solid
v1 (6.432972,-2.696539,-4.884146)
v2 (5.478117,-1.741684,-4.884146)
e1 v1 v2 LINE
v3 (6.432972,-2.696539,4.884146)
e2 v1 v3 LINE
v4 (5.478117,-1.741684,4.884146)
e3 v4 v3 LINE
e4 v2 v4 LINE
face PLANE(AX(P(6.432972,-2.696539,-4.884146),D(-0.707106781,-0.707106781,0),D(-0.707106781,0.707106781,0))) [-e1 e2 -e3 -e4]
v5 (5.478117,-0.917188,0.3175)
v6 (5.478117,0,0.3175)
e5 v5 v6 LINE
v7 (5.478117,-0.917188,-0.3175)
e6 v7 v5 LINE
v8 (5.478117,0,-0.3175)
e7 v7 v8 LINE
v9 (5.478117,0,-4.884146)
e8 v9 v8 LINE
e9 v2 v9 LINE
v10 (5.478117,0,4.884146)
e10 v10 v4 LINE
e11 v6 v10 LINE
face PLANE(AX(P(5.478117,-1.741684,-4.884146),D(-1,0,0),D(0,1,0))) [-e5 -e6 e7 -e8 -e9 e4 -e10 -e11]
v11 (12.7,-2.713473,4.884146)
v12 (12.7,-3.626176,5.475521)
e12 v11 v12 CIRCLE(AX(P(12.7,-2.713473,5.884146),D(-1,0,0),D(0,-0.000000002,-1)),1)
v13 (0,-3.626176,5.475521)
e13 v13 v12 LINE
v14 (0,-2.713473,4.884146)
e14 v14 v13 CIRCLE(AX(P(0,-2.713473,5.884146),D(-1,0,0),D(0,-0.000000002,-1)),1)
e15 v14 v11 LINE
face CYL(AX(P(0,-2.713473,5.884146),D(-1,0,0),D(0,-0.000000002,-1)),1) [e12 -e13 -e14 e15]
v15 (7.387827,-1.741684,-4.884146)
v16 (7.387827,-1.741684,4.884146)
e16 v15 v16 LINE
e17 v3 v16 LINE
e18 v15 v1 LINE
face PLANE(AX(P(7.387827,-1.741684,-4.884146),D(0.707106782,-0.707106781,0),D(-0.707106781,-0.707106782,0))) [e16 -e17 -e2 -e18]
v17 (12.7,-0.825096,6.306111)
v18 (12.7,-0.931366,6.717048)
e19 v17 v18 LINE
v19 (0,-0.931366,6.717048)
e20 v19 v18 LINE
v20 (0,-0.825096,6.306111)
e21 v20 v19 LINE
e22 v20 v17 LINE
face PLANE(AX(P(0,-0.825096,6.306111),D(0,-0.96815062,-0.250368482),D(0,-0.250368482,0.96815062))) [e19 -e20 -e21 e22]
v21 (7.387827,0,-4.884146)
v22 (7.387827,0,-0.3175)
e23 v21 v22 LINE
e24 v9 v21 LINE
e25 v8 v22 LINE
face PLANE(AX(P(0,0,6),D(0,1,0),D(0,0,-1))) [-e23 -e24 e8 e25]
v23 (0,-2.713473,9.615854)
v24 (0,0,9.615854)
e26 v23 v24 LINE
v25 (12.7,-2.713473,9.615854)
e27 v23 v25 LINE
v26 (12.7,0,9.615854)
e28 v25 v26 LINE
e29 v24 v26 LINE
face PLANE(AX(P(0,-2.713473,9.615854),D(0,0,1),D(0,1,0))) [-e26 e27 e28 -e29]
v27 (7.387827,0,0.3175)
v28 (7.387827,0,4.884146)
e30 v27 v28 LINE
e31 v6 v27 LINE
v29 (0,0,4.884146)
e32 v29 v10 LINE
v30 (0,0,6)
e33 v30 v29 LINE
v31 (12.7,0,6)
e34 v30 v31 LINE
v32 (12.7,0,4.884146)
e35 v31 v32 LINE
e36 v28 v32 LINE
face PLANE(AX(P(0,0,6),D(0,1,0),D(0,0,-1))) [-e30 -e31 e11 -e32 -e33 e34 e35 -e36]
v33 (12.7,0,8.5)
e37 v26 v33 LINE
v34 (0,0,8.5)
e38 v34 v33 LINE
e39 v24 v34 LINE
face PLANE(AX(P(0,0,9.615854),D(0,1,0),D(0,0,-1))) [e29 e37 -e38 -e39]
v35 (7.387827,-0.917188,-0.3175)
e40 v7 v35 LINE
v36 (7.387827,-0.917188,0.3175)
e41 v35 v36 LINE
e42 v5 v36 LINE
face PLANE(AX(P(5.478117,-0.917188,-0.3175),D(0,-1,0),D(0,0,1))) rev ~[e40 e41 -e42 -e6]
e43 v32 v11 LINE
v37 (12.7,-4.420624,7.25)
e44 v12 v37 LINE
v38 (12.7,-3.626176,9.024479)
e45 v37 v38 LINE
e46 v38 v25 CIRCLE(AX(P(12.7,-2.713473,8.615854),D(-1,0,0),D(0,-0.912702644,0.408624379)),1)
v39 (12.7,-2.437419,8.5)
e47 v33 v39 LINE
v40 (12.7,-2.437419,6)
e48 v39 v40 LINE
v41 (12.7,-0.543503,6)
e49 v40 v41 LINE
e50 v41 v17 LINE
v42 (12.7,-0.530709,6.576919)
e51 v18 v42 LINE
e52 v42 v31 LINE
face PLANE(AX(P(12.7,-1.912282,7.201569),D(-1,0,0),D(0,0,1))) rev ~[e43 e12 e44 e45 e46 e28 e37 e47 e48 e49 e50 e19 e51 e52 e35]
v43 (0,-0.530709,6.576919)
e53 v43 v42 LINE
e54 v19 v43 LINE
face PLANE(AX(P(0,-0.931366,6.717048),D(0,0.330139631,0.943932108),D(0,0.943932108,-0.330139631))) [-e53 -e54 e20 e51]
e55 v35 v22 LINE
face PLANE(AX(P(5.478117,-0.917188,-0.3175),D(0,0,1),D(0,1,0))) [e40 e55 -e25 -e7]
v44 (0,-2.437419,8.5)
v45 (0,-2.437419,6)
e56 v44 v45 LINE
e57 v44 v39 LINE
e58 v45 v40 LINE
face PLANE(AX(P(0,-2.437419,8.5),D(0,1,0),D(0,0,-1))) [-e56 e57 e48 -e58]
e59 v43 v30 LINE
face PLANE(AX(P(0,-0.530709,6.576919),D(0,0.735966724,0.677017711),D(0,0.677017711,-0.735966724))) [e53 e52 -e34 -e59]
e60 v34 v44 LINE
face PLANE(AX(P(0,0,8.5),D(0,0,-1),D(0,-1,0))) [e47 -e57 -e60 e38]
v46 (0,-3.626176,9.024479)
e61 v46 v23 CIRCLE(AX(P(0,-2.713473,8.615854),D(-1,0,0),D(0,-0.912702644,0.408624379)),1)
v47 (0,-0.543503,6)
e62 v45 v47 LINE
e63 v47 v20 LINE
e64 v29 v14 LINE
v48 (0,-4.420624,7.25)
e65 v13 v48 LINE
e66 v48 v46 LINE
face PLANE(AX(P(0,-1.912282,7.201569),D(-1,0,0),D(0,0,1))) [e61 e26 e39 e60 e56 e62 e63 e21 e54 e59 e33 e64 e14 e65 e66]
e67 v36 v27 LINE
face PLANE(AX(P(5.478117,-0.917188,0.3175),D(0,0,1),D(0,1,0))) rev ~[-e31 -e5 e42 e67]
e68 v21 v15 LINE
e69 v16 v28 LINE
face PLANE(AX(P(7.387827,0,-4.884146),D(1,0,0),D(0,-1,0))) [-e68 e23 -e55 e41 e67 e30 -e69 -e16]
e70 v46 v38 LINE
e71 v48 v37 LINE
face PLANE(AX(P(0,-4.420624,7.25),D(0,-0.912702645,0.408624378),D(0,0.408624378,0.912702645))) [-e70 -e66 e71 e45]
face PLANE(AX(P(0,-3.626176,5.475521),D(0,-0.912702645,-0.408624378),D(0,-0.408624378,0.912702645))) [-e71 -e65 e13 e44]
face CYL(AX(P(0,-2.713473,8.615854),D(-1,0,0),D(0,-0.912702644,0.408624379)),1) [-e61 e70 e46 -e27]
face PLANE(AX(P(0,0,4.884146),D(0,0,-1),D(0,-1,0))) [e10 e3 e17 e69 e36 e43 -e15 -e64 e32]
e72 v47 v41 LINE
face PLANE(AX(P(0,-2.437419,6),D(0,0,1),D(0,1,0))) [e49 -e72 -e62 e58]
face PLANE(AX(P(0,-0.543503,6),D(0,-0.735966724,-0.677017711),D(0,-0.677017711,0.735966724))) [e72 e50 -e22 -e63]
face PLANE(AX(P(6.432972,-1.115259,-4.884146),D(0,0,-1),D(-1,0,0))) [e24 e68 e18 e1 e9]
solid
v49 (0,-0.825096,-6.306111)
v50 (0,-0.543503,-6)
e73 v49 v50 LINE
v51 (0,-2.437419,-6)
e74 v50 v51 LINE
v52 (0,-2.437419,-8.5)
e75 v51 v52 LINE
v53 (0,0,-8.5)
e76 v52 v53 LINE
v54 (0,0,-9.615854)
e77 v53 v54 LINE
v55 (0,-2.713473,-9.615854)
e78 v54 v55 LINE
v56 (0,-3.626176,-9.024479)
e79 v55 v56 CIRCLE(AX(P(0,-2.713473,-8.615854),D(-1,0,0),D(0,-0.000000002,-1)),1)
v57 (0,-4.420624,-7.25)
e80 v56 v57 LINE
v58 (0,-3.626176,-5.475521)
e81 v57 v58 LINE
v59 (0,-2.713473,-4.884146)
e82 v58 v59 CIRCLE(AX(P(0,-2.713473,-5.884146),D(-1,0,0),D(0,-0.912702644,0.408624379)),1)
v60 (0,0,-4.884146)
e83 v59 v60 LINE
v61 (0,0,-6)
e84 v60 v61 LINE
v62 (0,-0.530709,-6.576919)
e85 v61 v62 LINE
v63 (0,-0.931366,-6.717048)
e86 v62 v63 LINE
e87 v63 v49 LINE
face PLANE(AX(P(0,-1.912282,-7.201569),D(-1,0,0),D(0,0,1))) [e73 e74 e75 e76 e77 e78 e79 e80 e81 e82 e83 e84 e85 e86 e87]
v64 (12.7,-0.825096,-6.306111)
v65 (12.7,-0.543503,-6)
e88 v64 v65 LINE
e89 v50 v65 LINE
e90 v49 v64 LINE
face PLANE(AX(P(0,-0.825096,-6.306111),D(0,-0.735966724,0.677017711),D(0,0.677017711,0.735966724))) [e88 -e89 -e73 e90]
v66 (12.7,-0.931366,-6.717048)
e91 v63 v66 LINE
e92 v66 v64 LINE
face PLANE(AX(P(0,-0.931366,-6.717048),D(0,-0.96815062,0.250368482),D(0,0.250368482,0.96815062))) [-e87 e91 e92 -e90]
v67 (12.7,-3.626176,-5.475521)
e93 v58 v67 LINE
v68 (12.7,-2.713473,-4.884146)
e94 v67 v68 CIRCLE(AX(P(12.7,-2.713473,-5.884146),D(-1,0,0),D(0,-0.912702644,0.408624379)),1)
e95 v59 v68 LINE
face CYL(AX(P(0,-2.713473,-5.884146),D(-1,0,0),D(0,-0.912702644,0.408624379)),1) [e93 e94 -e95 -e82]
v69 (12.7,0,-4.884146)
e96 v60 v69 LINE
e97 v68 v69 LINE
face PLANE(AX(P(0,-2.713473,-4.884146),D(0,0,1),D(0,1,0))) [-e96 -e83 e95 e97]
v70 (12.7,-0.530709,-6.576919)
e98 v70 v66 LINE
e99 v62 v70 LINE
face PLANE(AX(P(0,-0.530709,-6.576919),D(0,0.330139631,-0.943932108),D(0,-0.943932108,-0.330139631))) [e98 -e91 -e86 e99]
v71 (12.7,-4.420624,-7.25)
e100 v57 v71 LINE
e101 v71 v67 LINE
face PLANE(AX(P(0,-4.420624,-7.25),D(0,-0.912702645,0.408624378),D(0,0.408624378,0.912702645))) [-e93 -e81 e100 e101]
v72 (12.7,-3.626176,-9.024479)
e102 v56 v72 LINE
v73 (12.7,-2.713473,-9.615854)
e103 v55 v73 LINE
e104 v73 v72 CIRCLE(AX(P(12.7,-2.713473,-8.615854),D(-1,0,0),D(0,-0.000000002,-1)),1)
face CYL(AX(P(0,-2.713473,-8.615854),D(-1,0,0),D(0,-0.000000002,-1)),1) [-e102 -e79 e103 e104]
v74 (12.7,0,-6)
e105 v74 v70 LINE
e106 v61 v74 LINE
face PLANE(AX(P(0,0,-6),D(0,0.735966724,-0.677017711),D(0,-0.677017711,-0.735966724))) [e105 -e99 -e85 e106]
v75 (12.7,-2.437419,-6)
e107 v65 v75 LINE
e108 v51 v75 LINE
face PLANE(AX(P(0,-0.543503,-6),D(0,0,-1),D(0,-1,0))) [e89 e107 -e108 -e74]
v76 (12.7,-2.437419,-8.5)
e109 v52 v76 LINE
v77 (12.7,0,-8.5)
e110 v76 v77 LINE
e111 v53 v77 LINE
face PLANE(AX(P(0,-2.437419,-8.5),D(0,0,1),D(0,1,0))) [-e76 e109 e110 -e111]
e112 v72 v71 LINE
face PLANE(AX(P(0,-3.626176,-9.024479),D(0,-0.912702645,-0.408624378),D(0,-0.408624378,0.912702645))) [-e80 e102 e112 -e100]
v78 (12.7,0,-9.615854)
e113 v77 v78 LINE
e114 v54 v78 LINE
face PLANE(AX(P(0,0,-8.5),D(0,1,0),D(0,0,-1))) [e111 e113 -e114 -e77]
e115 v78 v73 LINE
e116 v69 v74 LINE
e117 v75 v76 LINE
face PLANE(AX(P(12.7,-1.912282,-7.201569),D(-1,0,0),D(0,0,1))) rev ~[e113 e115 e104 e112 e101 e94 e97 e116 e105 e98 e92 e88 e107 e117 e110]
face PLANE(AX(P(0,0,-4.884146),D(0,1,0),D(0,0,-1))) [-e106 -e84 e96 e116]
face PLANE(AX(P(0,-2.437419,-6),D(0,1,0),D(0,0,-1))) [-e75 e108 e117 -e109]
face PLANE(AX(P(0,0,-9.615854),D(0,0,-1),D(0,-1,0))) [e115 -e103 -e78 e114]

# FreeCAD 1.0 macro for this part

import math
import FreeCAD as App
import Part
import Sketcher


def add_polygon(sketch, points):
    """Adds a closed chain of lines whose ends are joined by coincident constraints."""
    first, n = sketch.GeometryCount, len(points)
    for a, b in zip(points, points[1:] + points[:1]):
        sketch.addGeometry(Part.LineSegment(App.Vector(*a, 0), App.Vector(*b, 0)), False)
    for i in range(n):
        sketch.addConstraint(Sketcher.Constraint("Coincident", first + i, 2, first + (i + 1) % n, 1))

doc = App.newDocument("Part")
body = doc.addObject("PartDesign::Body", "Body")

sketch1 = body.newObject("Sketcher::SketchObject", "Sketch")
sketch1.AttachmentSupport = (doc.getObject("YZ_Plane"), [""])
sketch1.MapMode = "FlatFace"
sketch1.addGeometry([
    Part.LineSegment(App.Vector(-0.54, -6, 0), App.Vector(-0.83, -6.31, 0)),
    Part.LineSegment(App.Vector(-0.83, -6.31, 0), App.Vector(-0.93, -6.72, 0)),
    Part.LineSegment(App.Vector(-0.93, -6.72, 0), App.Vector(-0.53, -6.58, 0)),
    Part.LineSegment(App.Vector(-0.53, -6.58, 0), App.Vector(0, -6, 0)),
    Part.LineSegment(App.Vector(0, -6, 0), App.Vector(0, -4.88, 0)),
    Part.LineSegment(App.Vector(0, -4.88, 0), App.Vector(-2.71, -4.88, 0)),
    Part.ArcOfCircle(Part.Circle(App.Vector(-2.71, -5.88, 0), App.Vector(0, 0, 1), 1), math.radians(90), math.radians(156)),
    Part.LineSegment(App.Vector(-3.63, -5.48, 0), App.Vector(-4.42, -7.25, 0)),
    Part.LineSegment(App.Vector(-4.42, -7.25, 0), App.Vector(-3.63, -9.02, 0)),
    Part.ArcOfCircle(Part.Circle(App.Vector(-2.71, -8.62, 0), App.Vector(0, 0, 1), 1), math.radians(-156), math.radians(-90)),
    Part.LineSegment(App.Vector(-2.71, -9.62, 0), App.Vector(0, -9.62, 0)),
    Part.LineSegment(App.Vector(0, -9.62, 0), App.Vector(0, -8.5, 0)),
    Part.LineSegment(App.Vector(0, -8.5, 0), App.Vector(-2.44, -8.5, 0)),
    Part.LineSegment(App.Vector(-2.44, -8.5, 0), App.Vector(-2.44, -6, 0)),
    Part.LineSegment(App.Vector(-2.44, -6, 0), App.Vector(-0.54, -6, 0)),
], False)
sketch1.addConstraint([
    Sketcher.Constraint("Coincident", 0, 2, 1, 1),
    Sketcher.Constraint("Coincident", 1, 2, 2, 1),
    Sketcher.Constraint("Coincident", 2, 2, 3, 1),
    Sketcher.Constraint("Coincident", 3, 2, 4, 1),
    Sketcher.Constraint("Coincident", 4, 2, 5, 1),
    Sketcher.Constraint("Tangent", 5, 2, 6, 1),
    Sketcher.Constraint("Tangent", 6, 2, 7, 1),
    Sketcher.Constraint("Coincident", 7, 2, 8, 1),
    Sketcher.Constraint("Tangent", 8, 2, 9, 1),
    Sketcher.Constraint("Tangent", 9, 2, 10, 1),
    Sketcher.Constraint("Coincident", 10, 2, 11, 1),
    Sketcher.Constraint("Coincident", 11, 2, 12, 1),
    Sketcher.Constraint("Coincident", 12, 2, 13, 1),
    Sketcher.Constraint("Coincident", 13, 2, 14, 1),
    Sketcher.Constraint("Coincident", 14, 2, 0, 1),
    Sketcher.Constraint("Vertical", 4),
    Sketcher.Constraint("Horizontal", 5),
    Sketcher.Constraint("Horizontal", 10),
    Sketcher.Constraint("Vertical", 11),
    Sketcher.Constraint("Horizontal", 12),
    Sketcher.Constraint("Vertical", 13),
    Sketcher.Constraint("Horizontal", 14),
    Sketcher.Constraint("Equal", 6, 9),
    Sketcher.Constraint("PointOnObject", 3, 2, -2),
    Sketcher.Constraint("PointOnObject", 10, 2, -2),
    Sketcher.Constraint("Parallel", 0, 3),
    Sketcher.Constraint("Horizontal", 3, 2, 13, 2),
    Sketcher.Constraint("Vertical", 6, 3, 9, 3),
    Sketcher.Constraint("Vertical", 6, 2, 8, 2),
    Sketcher.Constraint("Equal", 4, 11),
    Sketcher.Constraint("Equal", 1, 2),
    Sketcher.Constraint("Radius", 6, 1.0),
    Sketcher.Constraint("DistanceY", 13, 1, 13, 2, 2.5),
    Sketcher.Constraint("DistanceY", 3, 2, -1, 1, 6.0),
    Sketcher.Constraint("DistanceX", 12, 2, 12, 1, 2.437419),
    Sketcher.Constraint("Distance", 0, 0.415931),
    Sketcher.Constraint("DistanceX", 5, 2, 5, 1, 2.713473),
    Sketcher.Constraint("DistanceX", 14, 1, 14, 2, 1.893916),
    Sketcher.Constraint("DistanceY", 4, 1, 4, 2, 1.115854),
    Sketcher.Constraint("DistanceY", 0, 2, -1, 1, 6.306111),
    Sketcher.Constraint("DistanceY", 1, 2, -1, 1, 6.717048),
    Sketcher.Constraint("DistanceX", 2, 2, -1, 1, 0.530709),
    Sketcher.Constraint("DistanceY", 6, 2, -1, 1, 5.475521),
])
pad1 = body.newObject("PartDesign::Pad", "Pad")
pad1.Profile = sketch1
pad1.Length = 12.7
body2 = doc.addObject("PartDesign::Body", "Body001")

sketch2 = body2.newObject("Sketcher::SketchObject", "Sketch001")
sketch2.AttachmentSupport = (doc.getObject("YZ_Plane001"), [""])
sketch2.MapMode = "FlatFace"
sketch2.addGeometry([
    Part.LineSegment(App.Vector(0, 4.88, 0), App.Vector(0, 6, 0)),
    Part.LineSegment(App.Vector(0, 6, 0), App.Vector(-0.53, 6.58, 0)),
    Part.LineSegment(App.Vector(-0.53, 6.58, 0), App.Vector(-0.93, 6.72, 0)),
    Part.LineSegment(App.Vector(-0.93, 6.72, 0), App.Vector(-0.83, 6.31, 0)),
    Part.LineSegment(App.Vector(-0.83, 6.31, 0), App.Vector(-0.54, 6, 0)),
    Part.LineSegment(App.Vector(-0.54, 6, 0), App.Vector(-2.44, 6, 0)),
    Part.LineSegment(App.Vector(-2.44, 6, 0), App.Vector(-2.44, 8.5, 0)),
    Part.LineSegment(App.Vector(-2.44, 8.5, 0), App.Vector(0, 8.5, 0)),
    Part.LineSegment(App.Vector(0, 8.5, 0), App.Vector(0, 9.62, 0)),
    Part.LineSegment(App.Vector(0, 9.62, 0), App.Vector(-2.71, 9.62, 0)),
    Part.ArcOfCircle(Part.Circle(App.Vector(-2.71, 8.62, 0), App.Vector(0, 0, 1), 1), math.radians(90), math.radians(156)),
    Part.LineSegment(App.Vector(-3.63, 9.02, 0), App.Vector(-4.42, 7.25, 0)),
    Part.LineSegment(App.Vector(-4.42, 7.25, 0), App.Vector(-3.63, 5.48, 0)),
    Part.ArcOfCircle(Part.Circle(App.Vector(-2.71, 5.88, 0), App.Vector(0, 0, 1), 1), math.radians(-156), math.radians(-90)),
    Part.LineSegment(App.Vector(-2.71, 4.88, 0), App.Vector(0, 4.88, 0)),
], False)
sketch2.addConstraint([
    Sketcher.Constraint("Coincident", 0, 2, 1, 1),
    Sketcher.Constraint("Coincident", 1, 2, 2, 1),
    Sketcher.Constraint("Coincident", 2, 2, 3, 1),
    Sketcher.Constraint("Coincident", 3, 2, 4, 1),
    Sketcher.Constraint("Coincident", 4, 2, 5, 1),
    Sketcher.Constraint("Coincident", 5, 2, 6, 1),
    Sketcher.Constraint("Coincident", 6, 2, 7, 1),
    Sketcher.Constraint("Coincident", 7, 2, 8, 1),
    Sketcher.Constraint("Coincident", 8, 2, 9, 1),
    Sketcher.Constraint("Tangent", 9, 2, 10, 1),
    Sketcher.Constraint("Tangent", 10, 2, 11, 1),
    Sketcher.Constraint("Coincident", 11, 2, 12, 1),
    Sketcher.Constraint("Tangent", 12, 2, 13, 1),
    Sketcher.Constraint("Tangent", 13, 2, 14, 1),
    Sketcher.Constraint("Coincident", 14, 2, 0, 1),
    Sketcher.Constraint("Vertical", 0),
    Sketcher.Constraint("Horizontal", 5),
    Sketcher.Constraint("Vertical", 6),
    Sketcher.Constraint("Horizontal", 7),
    Sketcher.Constraint("Vertical", 8),
    Sketcher.Constraint("Horizontal", 9),
    Sketcher.Constraint("Horizontal", 14),
    Sketcher.Constraint("Equal", 10, 13),
    Sketcher.Constraint("PointOnObject", 0, 2, -2),
    Sketcher.Constraint("PointOnObject", 7, 2, -2),
    Sketcher.Constraint("Parallel", 1, 4),
    Sketcher.Constraint("Horizontal", 0, 2, 4, 2),
    Sketcher.Constraint("Vertical", 10, 3, 13, 3),
    Sketcher.Constraint("Vertical", 10, 2, 12, 2),
    Sketcher.Constraint("Equal", 0, 8),
    Sketcher.Constraint("Equal", 2, 3),
    Sketcher.Constraint("Radius", 10, 1.0),
    Sketcher.Constraint("DistanceY", 6, 1, 6, 2, 2.5),
    Sketcher.Constraint("DistanceY", -1, 1, 0, 2, 6.0),
    Sketcher.Constraint("DistanceX", 7, 1, 7, 2, 2.437419),
    Sketcher.Constraint("Distance", 4, 0.415931),
    Sketcher.Constraint("DistanceX", 5, 2, 5, 1, 1.893916),
    Sketcher.Constraint("DistanceX", 9, 2, 9, 1, 2.713473),
    Sketcher.Constraint("DistanceY", 0, 1, 0, 2, 1.115854),
    Sketcher.Constraint("DistanceX", 1, 2, -1, 1, 0.530709),
    Sketcher.Constraint("DistanceY", -1, 1, 1, 2, 6.576919),
    Sketcher.Constraint("DistanceY", -1, 1, 2, 2, 6.717048),
    Sketcher.Constraint("DistanceY", -1, 1, 10, 2, 9.024479),
])
pad2 = body2.newObject("PartDesign::Pad", "Pad001")
pad2.Profile = sketch2
pad2.Length = 12.7

sketch3 = body2.newObject("Sketcher::SketchObject", "Sketch002")
sketch3.AttachmentSupport = (doc.getObject("XY_Plane001"), [""])
sketch3.MapMode = "FlatFace"
sketch3.AttachmentOffset = App.Placement(App.Vector(0, 0, -4.884146), App.Rotation())
add_polygon(sketch3, [(7.4, 0), (5.5, 0), (5.5, -1.7), (6.4, -2.7), (7.4, -1.7)])
sketch3.addConstraint([
    Sketcher.Constraint("Horizontal", 0),
    Sketcher.Constraint("Vertical", 1),
    Sketcher.Constraint("Vertical", 4),
    Sketcher.Constraint("PointOnObject", 0, 2, -1),
    Sketcher.Constraint("Perpendicular", 2, 3),
    Sketcher.Constraint("Horizontal", 1, 2, 3, 2),
    Sketcher.Constraint("Equal", 2, 3),
    Sketcher.Constraint("DistanceX", 0, 2, 0, 1, 1.90971),
    Sketcher.Constraint("DistanceY", 1, 2, 1, 1, 1.741684),
    Sketcher.Constraint("DistanceX", -1, 1, 0, 2, 5.478117),
])
pad3 = body2.newObject("PartDesign::Pad", "Pad002")
pad3.Profile = sketch3
pad3.Type = "UpToFirst"

sketch4 = body2.newObject("Sketcher::SketchObject", "Sketch003")
sketch4.AttachmentSupport = (doc.getObject("YZ_Plane001"), [""])
sketch4.MapMode = "FlatFace"
sketch4.AttachmentOffset = App.Placement(App.Vector(0, 0, 5.478117), App.Rotation())
add_polygon(sketch4, [(0, -0.3), (-0.9, -0.3), (-0.9, 0.3), (0, 0.3)])
sketch4.addConstraint([
    Sketcher.Constraint("Horizontal", 0),
    Sketcher.Constraint("Vertical", 1),
    Sketcher.Constraint("Horizontal", 2),
    Sketcher.Constraint("Vertical", 3),
    Sketcher.Constraint("Symmetric", 2, 2, 3, 2, -1, 1),
    Sketcher.Constraint("DistanceY", 1, 1, 1, 2, 0.635),
    Sketcher.Constraint("DistanceX", 0, 2, 0, 1, 0.917188),
])
pocket1 = body2.newObject("PartDesign::Pocket", "Pocket")
pocket1.Profile = sketch4
pocket1.Length = 1.90971
pocket1.Reversed = True

doc.recompute()
